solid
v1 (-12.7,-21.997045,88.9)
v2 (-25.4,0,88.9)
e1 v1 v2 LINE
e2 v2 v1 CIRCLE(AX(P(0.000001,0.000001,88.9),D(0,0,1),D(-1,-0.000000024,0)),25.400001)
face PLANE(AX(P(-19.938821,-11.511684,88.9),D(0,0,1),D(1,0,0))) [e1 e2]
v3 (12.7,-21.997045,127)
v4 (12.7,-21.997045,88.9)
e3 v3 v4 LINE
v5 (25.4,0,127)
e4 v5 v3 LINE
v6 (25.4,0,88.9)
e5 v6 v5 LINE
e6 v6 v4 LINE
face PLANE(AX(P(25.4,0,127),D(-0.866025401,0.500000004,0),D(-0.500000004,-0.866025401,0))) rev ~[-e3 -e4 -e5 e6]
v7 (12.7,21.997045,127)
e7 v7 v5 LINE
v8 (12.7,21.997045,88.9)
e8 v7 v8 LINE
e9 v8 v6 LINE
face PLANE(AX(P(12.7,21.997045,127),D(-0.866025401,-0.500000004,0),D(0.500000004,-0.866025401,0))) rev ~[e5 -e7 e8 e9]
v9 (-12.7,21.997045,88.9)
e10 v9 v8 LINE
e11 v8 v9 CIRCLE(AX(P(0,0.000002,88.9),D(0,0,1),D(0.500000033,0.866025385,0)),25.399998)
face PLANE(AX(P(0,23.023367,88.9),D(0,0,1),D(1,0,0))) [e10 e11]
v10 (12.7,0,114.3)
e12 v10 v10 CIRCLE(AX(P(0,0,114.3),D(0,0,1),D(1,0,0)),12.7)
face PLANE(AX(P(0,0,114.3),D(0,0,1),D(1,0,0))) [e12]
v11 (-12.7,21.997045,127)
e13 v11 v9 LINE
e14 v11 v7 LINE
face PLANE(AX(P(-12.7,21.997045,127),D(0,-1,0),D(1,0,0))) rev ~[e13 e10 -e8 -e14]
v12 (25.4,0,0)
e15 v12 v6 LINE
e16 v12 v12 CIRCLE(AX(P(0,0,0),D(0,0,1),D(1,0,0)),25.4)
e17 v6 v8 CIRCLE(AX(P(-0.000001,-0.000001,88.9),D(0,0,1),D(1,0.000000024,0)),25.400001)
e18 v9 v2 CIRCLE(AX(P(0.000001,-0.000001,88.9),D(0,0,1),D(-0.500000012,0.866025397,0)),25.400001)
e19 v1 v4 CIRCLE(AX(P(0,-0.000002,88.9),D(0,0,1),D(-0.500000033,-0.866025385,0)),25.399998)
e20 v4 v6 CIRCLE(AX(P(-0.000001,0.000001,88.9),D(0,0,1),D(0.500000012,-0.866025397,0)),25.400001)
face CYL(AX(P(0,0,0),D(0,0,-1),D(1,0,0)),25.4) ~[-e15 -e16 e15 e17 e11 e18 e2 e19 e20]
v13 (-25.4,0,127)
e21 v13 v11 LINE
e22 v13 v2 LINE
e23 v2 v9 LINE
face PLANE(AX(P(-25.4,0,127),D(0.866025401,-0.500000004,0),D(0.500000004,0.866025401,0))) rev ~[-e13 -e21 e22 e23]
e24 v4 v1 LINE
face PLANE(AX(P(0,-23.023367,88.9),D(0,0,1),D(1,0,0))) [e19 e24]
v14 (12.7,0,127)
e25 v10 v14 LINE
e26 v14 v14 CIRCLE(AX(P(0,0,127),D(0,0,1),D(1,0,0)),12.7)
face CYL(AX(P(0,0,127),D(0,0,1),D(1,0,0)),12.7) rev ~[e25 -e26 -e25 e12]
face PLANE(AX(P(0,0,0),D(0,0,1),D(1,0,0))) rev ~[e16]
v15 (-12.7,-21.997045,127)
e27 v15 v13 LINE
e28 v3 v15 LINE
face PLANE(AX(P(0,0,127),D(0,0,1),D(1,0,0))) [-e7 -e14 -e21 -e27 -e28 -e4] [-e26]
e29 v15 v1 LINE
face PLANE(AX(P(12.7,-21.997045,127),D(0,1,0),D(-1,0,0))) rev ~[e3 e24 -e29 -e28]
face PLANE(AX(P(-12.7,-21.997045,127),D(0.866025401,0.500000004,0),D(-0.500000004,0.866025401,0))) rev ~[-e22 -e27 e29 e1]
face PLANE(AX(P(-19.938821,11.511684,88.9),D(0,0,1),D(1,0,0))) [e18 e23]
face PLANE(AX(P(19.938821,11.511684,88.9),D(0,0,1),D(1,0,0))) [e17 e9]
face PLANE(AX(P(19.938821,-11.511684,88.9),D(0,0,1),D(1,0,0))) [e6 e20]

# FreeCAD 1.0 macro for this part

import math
import FreeCAD as App
import Part
import Sketcher

V = App.Vector
Q = App.Units.Quantity

doc = App.newDocument("Part")
body = doc.addObject("PartDesign::Body", "Body")

# Sketch on XY plane
sketch1 = body.newObject("Sketcher::SketchObject", "Sketch")
sketch1.AttachmentSupport = (doc.getObject("XY_Plane"), [""])
sketch1.MapMode = "FlatFace"
sketch1.addGeometry(Part.Circle(V(0, 0, 0), V(0, 0, 1), 25), False)
sketch1.addConstraint([
    Sketcher.Constraint("Coincident", 0, 3, -1, 1),
    Sketcher.Constraint("Diameter", 0, Q("2 in")),
])
pad1 = body.newObject("PartDesign::Pad", "Pad")
pad1.Profile = sketch1
pad1.Length = Q("5 in")

# Sketch on XY plane
sketch2 = body.newObject("Sketcher::SketchObject", "Sketch001")
sketch2.AttachmentSupport = (doc.getObject("XY_Plane"), [""])
sketch2.MapMode = "FlatFace"
sketch2.AttachmentOffset = App.Placement(V(0, 0, 5 * 25.4), App.Rotation())
sketch2.addGeometry([
    Part.ArcOfCircle(Part.Circle(V(0, 0, 0), V(0, 0, 1), 25), math.radians(-180), math.radians(-120)),  # 0
    Part.LineSegment(V(-13, -22, 0), V(-25, 0, 0)),  # 1
    Part.ArcOfCircle(Part.Circle(V(0, 0, 0), V(0, 0, 1), 25), math.radians(-120), math.radians(-60)),  # 2
    Part.LineSegment(V(13, -22, 0), V(-13, -22, 0)),  # 3
    Part.ArcOfCircle(Part.Circle(V(0, 0, 0), V(0, 0, 1), 25), math.radians(-60), math.radians(0)),  # 4
    Part.LineSegment(V(25, 0, 0), V(13, -22, 0)),  # 5
    Part.LineSegment(V(13, 22, 0), V(25, 0, 0)),  # 6
    Part.ArcOfCircle(Part.Circle(V(0, 0, 0), V(0, 0, 1), 25), math.radians(0), math.radians(60)),  # 7
    Part.LineSegment(V(-13, 22, 0), V(13, 22, 0)),  # 8
    Part.ArcOfCircle(Part.Circle(V(0, 0, 0), V(0, 0, 1), 25), math.radians(60), math.radians(120)),  # 9
    Part.LineSegment(V(-25, 0, 0), V(-13, 22, 0)),  # 10
    Part.ArcOfCircle(Part.Circle(V(0, 0, 0), V(0, 0, 1), 25), math.radians(120), math.radians(180)),  # 11
], False)
sketch2.addConstraint([
    Sketcher.Constraint("Coincident", 0, 1, 1, 2),
    Sketcher.Constraint("Coincident", 1, 1, 0, 2),
    Sketcher.Constraint("Coincident", 2, 1, 3, 2),
    Sketcher.Constraint("Coincident", 3, 1, 2, 2),
    Sketcher.Constraint("Coincident", 4, 1, 5, 2),
    Sketcher.Constraint("Coincident", 5, 1, 4, 2),
    Sketcher.Constraint("Coincident", 6, 1, 7, 2),
    Sketcher.Constraint("Coincident", 7, 1, 6, 2),
    Sketcher.Constraint("Coincident", 8, 1, 9, 2),
    Sketcher.Constraint("Coincident", 9, 1, 8, 2),
    Sketcher.Constraint("Coincident", 10, 1, 11, 2),
    Sketcher.Constraint("Coincident", 11, 1, 10, 2),
    Sketcher.Constraint("Horizontal", 3),
    Sketcher.Constraint("Horizontal", 8),
    Sketcher.Constraint("Coincident", 0, 3, -1, 1),
    Sketcher.Constraint("Coincident", 2, 3, -1, 1),
    Sketcher.Constraint("Coincident", 4, 3, -1, 1),
    Sketcher.Constraint("Coincident", 7, 3, -1, 1),
    Sketcher.Constraint("Coincident", 9, 3, -1, 1),
    Sketcher.Constraint("Coincident", 11, 3, -1, 1),
    Sketcher.Constraint("Coincident", 2, 1, 1, 1),
    Sketcher.Constraint("Coincident", 4, 1, 3, 1),
    Sketcher.Constraint("Coincident", 7, 1, 5, 1),
    Sketcher.Constraint("Coincident", 9, 1, 6, 1),
    Sketcher.Constraint("Coincident", 10, 1, 0, 1),
    Sketcher.Constraint("PointOnObject", 0, 1, -1),
    Sketcher.Constraint("PointOnObject", 5, 1, -1),
    Sketcher.Constraint("Parallel", 1, 6),
    Sketcher.Constraint("Parallel", 5, 10),
    Sketcher.Constraint("Radius", 0, Q("1 in")),
    Sketcher.Constraint("DistanceX", 3, 2, 3, 1, Q("1 in")),
])
pocket1 = body.newObject("PartDesign::Pocket", "Pocket")
pocket1.Profile = sketch2
pocket1.Length = Q("1.5 in")

# Sketch on XY plane
sketch3 = body.newObject("Sketcher::SketchObject", "Sketch002")
sketch3.AttachmentSupport = (doc.getObject("XY_Plane"), [""])
sketch3.MapMode = "FlatFace"
sketch3.AttachmentOffset = App.Placement(V(0, 0, 5 * 25.4), App.Rotation())
sketch3.addGeometry(Part.Circle(V(0, 0, 0), V(0, 0, 1), 13), False)
sketch3.addConstraint([
    Sketcher.Constraint("Coincident", 0, 3, -1, 1),
    Sketcher.Constraint("Diameter", 0, Q("1 in")),
])
pocket2 = body.newObject("PartDesign::Pocket", "Pocket001")
pocket2.Profile = sketch3
pocket2.Length = Q("1 in")
pocket2.Midplane = True

doc.recompute()
